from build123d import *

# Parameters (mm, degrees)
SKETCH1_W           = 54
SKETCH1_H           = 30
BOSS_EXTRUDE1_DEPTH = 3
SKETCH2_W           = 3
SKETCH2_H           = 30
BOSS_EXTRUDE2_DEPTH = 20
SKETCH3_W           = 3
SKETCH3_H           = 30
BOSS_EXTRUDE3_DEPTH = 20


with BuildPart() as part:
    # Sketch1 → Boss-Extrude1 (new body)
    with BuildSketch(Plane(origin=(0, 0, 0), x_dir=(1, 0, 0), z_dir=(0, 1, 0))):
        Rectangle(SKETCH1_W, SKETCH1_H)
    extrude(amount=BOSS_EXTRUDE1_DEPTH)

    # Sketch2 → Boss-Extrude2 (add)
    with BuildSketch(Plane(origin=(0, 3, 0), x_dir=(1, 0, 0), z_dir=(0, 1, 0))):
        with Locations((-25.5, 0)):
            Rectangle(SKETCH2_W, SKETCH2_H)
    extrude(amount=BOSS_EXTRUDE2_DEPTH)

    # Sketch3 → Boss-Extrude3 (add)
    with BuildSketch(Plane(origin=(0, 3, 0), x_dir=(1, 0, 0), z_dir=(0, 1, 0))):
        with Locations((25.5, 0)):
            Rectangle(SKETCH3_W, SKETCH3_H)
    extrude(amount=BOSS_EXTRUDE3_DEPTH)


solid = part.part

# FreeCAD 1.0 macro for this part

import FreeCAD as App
import Part
import Sketcher


def add_polygon(sketch, points):
    """Adds a closed chain of lines whose ends are joined by coincident constraints."""
    first, n = sketch.GeometryCount, len(points)
    for a, b in zip(points, points[1:] + points[:1]):
        sketch.addGeometry(Part.LineSegment(App.Vector(*a, 0), App.Vector(*b, 0)), False)
    for i in range(n):
        sketch.addConstraint(Sketcher.Constraint("Coincident", first + i, 2, first + (i + 1) % n, 1))

doc = App.newDocument("Part")
body = doc.addObject("PartDesign::Body", "Body")

sketch1 = body.newObject("Sketcher::SketchObject", "Sketch")
sketch1.AttachmentSupport = (doc.getObject("XZ_Plane"), [""])
sketch1.MapMode = "FlatFace"
add_polygon(sketch1, [(-27, -15), (-27, 15), (27, 15), (27, -15)])
sketch1.addConstraint(Sketcher.Constraint("Vertical", 0))
sketch1.addConstraint(Sketcher.Constraint("Horizontal", 1))
sketch1.addConstraint(Sketcher.Constraint("Vertical", 2))
sketch1.addConstraint(Sketcher.Constraint("Horizontal", 3))
sketch1.addConstraint(Sketcher.Constraint("Symmetric", 0, 2, 2, 2, -1, 1))
sketch1.addConstraint(Sketcher.Constraint("DistanceX", 1, 1, 1, 2, 54.0))
sketch1.addConstraint(Sketcher.Constraint("DistanceY", 0, 1, 0, 2, 30.0))
pad1 = body.newObject("PartDesign::Pad", "Pad")
pad1.Profile = sketch1
pad1.Length = 3
pad1.Reversed = True

sketch2 = body.newObject("Sketcher::SketchObject", "Sketch001")
sketch2.AttachmentSupport = (doc.getObject("XZ_Plane"), [""])
sketch2.MapMode = "FlatFace"
sketch2.AttachmentOffset = App.Placement(App.Vector(0, 0, -3), App.Rotation())
add_polygon(sketch2, [(-27, -15), (-27, 15), (-24, 15), (-24, -15)])
sketch2.addConstraint(Sketcher.Constraint("Vertical", 0))
sketch2.addConstraint(Sketcher.Constraint("Horizontal", 1))
sketch2.addConstraint(Sketcher.Constraint("Vertical", 2))
sketch2.addConstraint(Sketcher.Constraint("Horizontal", 3))
sketch2.addConstraint(Sketcher.Constraint("DistanceX", 1, 1, 1, 2, 3.0))
sketch2.addConstraint(Sketcher.Constraint("DistanceY", 0, 1, 0, 2, 30.0))
sketch2.addConstraint(Sketcher.Constraint("DistanceX", 0, 2, -1, 1, 27.0))
sketch2.addConstraint(Sketcher.Constraint("DistanceY", -1, 1, 0, 2, 15.0))
pad2 = body.newObject("PartDesign::Pad", "Pad001")
pad2.Profile = sketch2
pad2.Length = 20
pad2.Reversed = True

sketch3 = body.newObject("Sketcher::SketchObject", "Sketch002")
sketch3.AttachmentSupport = (doc.getObject("XZ_Plane"), [""])
sketch3.MapMode = "FlatFace"
sketch3.AttachmentOffset = App.Placement(App.Vector(0, 0, -3), App.Rotation())
add_polygon(sketch3, [(24, -15), (24, 15), (27, 15), (27, -15)])
sketch3.addConstraint(Sketcher.Constraint("Vertical", 0))
sketch3.addConstraint(Sketcher.Constraint("Horizontal", 1))
sketch3.addConstraint(Sketcher.Constraint("Vertical", 2))
sketch3.addConstraint(Sketcher.Constraint("Horizontal", 3))
sketch3.addConstraint(Sketcher.Constraint("DistanceX", 1, 1, 1, 2, 3.0))
sketch3.addConstraint(Sketcher.Constraint("DistanceY", 0, 1, 0, 2, 30.0))
sketch3.addConstraint(Sketcher.Constraint("DistanceX", -1, 1, 0, 2, 24.0))
sketch3.addConstraint(Sketcher.Constraint("DistanceY", -1, 1, 0, 2, 15.0))
pad3 = body.newObject("PartDesign::Pad", "Pad002")
pad3.Profile = sketch3
pad3.Length = 20
pad3.Reversed = True

doc.recompute()
